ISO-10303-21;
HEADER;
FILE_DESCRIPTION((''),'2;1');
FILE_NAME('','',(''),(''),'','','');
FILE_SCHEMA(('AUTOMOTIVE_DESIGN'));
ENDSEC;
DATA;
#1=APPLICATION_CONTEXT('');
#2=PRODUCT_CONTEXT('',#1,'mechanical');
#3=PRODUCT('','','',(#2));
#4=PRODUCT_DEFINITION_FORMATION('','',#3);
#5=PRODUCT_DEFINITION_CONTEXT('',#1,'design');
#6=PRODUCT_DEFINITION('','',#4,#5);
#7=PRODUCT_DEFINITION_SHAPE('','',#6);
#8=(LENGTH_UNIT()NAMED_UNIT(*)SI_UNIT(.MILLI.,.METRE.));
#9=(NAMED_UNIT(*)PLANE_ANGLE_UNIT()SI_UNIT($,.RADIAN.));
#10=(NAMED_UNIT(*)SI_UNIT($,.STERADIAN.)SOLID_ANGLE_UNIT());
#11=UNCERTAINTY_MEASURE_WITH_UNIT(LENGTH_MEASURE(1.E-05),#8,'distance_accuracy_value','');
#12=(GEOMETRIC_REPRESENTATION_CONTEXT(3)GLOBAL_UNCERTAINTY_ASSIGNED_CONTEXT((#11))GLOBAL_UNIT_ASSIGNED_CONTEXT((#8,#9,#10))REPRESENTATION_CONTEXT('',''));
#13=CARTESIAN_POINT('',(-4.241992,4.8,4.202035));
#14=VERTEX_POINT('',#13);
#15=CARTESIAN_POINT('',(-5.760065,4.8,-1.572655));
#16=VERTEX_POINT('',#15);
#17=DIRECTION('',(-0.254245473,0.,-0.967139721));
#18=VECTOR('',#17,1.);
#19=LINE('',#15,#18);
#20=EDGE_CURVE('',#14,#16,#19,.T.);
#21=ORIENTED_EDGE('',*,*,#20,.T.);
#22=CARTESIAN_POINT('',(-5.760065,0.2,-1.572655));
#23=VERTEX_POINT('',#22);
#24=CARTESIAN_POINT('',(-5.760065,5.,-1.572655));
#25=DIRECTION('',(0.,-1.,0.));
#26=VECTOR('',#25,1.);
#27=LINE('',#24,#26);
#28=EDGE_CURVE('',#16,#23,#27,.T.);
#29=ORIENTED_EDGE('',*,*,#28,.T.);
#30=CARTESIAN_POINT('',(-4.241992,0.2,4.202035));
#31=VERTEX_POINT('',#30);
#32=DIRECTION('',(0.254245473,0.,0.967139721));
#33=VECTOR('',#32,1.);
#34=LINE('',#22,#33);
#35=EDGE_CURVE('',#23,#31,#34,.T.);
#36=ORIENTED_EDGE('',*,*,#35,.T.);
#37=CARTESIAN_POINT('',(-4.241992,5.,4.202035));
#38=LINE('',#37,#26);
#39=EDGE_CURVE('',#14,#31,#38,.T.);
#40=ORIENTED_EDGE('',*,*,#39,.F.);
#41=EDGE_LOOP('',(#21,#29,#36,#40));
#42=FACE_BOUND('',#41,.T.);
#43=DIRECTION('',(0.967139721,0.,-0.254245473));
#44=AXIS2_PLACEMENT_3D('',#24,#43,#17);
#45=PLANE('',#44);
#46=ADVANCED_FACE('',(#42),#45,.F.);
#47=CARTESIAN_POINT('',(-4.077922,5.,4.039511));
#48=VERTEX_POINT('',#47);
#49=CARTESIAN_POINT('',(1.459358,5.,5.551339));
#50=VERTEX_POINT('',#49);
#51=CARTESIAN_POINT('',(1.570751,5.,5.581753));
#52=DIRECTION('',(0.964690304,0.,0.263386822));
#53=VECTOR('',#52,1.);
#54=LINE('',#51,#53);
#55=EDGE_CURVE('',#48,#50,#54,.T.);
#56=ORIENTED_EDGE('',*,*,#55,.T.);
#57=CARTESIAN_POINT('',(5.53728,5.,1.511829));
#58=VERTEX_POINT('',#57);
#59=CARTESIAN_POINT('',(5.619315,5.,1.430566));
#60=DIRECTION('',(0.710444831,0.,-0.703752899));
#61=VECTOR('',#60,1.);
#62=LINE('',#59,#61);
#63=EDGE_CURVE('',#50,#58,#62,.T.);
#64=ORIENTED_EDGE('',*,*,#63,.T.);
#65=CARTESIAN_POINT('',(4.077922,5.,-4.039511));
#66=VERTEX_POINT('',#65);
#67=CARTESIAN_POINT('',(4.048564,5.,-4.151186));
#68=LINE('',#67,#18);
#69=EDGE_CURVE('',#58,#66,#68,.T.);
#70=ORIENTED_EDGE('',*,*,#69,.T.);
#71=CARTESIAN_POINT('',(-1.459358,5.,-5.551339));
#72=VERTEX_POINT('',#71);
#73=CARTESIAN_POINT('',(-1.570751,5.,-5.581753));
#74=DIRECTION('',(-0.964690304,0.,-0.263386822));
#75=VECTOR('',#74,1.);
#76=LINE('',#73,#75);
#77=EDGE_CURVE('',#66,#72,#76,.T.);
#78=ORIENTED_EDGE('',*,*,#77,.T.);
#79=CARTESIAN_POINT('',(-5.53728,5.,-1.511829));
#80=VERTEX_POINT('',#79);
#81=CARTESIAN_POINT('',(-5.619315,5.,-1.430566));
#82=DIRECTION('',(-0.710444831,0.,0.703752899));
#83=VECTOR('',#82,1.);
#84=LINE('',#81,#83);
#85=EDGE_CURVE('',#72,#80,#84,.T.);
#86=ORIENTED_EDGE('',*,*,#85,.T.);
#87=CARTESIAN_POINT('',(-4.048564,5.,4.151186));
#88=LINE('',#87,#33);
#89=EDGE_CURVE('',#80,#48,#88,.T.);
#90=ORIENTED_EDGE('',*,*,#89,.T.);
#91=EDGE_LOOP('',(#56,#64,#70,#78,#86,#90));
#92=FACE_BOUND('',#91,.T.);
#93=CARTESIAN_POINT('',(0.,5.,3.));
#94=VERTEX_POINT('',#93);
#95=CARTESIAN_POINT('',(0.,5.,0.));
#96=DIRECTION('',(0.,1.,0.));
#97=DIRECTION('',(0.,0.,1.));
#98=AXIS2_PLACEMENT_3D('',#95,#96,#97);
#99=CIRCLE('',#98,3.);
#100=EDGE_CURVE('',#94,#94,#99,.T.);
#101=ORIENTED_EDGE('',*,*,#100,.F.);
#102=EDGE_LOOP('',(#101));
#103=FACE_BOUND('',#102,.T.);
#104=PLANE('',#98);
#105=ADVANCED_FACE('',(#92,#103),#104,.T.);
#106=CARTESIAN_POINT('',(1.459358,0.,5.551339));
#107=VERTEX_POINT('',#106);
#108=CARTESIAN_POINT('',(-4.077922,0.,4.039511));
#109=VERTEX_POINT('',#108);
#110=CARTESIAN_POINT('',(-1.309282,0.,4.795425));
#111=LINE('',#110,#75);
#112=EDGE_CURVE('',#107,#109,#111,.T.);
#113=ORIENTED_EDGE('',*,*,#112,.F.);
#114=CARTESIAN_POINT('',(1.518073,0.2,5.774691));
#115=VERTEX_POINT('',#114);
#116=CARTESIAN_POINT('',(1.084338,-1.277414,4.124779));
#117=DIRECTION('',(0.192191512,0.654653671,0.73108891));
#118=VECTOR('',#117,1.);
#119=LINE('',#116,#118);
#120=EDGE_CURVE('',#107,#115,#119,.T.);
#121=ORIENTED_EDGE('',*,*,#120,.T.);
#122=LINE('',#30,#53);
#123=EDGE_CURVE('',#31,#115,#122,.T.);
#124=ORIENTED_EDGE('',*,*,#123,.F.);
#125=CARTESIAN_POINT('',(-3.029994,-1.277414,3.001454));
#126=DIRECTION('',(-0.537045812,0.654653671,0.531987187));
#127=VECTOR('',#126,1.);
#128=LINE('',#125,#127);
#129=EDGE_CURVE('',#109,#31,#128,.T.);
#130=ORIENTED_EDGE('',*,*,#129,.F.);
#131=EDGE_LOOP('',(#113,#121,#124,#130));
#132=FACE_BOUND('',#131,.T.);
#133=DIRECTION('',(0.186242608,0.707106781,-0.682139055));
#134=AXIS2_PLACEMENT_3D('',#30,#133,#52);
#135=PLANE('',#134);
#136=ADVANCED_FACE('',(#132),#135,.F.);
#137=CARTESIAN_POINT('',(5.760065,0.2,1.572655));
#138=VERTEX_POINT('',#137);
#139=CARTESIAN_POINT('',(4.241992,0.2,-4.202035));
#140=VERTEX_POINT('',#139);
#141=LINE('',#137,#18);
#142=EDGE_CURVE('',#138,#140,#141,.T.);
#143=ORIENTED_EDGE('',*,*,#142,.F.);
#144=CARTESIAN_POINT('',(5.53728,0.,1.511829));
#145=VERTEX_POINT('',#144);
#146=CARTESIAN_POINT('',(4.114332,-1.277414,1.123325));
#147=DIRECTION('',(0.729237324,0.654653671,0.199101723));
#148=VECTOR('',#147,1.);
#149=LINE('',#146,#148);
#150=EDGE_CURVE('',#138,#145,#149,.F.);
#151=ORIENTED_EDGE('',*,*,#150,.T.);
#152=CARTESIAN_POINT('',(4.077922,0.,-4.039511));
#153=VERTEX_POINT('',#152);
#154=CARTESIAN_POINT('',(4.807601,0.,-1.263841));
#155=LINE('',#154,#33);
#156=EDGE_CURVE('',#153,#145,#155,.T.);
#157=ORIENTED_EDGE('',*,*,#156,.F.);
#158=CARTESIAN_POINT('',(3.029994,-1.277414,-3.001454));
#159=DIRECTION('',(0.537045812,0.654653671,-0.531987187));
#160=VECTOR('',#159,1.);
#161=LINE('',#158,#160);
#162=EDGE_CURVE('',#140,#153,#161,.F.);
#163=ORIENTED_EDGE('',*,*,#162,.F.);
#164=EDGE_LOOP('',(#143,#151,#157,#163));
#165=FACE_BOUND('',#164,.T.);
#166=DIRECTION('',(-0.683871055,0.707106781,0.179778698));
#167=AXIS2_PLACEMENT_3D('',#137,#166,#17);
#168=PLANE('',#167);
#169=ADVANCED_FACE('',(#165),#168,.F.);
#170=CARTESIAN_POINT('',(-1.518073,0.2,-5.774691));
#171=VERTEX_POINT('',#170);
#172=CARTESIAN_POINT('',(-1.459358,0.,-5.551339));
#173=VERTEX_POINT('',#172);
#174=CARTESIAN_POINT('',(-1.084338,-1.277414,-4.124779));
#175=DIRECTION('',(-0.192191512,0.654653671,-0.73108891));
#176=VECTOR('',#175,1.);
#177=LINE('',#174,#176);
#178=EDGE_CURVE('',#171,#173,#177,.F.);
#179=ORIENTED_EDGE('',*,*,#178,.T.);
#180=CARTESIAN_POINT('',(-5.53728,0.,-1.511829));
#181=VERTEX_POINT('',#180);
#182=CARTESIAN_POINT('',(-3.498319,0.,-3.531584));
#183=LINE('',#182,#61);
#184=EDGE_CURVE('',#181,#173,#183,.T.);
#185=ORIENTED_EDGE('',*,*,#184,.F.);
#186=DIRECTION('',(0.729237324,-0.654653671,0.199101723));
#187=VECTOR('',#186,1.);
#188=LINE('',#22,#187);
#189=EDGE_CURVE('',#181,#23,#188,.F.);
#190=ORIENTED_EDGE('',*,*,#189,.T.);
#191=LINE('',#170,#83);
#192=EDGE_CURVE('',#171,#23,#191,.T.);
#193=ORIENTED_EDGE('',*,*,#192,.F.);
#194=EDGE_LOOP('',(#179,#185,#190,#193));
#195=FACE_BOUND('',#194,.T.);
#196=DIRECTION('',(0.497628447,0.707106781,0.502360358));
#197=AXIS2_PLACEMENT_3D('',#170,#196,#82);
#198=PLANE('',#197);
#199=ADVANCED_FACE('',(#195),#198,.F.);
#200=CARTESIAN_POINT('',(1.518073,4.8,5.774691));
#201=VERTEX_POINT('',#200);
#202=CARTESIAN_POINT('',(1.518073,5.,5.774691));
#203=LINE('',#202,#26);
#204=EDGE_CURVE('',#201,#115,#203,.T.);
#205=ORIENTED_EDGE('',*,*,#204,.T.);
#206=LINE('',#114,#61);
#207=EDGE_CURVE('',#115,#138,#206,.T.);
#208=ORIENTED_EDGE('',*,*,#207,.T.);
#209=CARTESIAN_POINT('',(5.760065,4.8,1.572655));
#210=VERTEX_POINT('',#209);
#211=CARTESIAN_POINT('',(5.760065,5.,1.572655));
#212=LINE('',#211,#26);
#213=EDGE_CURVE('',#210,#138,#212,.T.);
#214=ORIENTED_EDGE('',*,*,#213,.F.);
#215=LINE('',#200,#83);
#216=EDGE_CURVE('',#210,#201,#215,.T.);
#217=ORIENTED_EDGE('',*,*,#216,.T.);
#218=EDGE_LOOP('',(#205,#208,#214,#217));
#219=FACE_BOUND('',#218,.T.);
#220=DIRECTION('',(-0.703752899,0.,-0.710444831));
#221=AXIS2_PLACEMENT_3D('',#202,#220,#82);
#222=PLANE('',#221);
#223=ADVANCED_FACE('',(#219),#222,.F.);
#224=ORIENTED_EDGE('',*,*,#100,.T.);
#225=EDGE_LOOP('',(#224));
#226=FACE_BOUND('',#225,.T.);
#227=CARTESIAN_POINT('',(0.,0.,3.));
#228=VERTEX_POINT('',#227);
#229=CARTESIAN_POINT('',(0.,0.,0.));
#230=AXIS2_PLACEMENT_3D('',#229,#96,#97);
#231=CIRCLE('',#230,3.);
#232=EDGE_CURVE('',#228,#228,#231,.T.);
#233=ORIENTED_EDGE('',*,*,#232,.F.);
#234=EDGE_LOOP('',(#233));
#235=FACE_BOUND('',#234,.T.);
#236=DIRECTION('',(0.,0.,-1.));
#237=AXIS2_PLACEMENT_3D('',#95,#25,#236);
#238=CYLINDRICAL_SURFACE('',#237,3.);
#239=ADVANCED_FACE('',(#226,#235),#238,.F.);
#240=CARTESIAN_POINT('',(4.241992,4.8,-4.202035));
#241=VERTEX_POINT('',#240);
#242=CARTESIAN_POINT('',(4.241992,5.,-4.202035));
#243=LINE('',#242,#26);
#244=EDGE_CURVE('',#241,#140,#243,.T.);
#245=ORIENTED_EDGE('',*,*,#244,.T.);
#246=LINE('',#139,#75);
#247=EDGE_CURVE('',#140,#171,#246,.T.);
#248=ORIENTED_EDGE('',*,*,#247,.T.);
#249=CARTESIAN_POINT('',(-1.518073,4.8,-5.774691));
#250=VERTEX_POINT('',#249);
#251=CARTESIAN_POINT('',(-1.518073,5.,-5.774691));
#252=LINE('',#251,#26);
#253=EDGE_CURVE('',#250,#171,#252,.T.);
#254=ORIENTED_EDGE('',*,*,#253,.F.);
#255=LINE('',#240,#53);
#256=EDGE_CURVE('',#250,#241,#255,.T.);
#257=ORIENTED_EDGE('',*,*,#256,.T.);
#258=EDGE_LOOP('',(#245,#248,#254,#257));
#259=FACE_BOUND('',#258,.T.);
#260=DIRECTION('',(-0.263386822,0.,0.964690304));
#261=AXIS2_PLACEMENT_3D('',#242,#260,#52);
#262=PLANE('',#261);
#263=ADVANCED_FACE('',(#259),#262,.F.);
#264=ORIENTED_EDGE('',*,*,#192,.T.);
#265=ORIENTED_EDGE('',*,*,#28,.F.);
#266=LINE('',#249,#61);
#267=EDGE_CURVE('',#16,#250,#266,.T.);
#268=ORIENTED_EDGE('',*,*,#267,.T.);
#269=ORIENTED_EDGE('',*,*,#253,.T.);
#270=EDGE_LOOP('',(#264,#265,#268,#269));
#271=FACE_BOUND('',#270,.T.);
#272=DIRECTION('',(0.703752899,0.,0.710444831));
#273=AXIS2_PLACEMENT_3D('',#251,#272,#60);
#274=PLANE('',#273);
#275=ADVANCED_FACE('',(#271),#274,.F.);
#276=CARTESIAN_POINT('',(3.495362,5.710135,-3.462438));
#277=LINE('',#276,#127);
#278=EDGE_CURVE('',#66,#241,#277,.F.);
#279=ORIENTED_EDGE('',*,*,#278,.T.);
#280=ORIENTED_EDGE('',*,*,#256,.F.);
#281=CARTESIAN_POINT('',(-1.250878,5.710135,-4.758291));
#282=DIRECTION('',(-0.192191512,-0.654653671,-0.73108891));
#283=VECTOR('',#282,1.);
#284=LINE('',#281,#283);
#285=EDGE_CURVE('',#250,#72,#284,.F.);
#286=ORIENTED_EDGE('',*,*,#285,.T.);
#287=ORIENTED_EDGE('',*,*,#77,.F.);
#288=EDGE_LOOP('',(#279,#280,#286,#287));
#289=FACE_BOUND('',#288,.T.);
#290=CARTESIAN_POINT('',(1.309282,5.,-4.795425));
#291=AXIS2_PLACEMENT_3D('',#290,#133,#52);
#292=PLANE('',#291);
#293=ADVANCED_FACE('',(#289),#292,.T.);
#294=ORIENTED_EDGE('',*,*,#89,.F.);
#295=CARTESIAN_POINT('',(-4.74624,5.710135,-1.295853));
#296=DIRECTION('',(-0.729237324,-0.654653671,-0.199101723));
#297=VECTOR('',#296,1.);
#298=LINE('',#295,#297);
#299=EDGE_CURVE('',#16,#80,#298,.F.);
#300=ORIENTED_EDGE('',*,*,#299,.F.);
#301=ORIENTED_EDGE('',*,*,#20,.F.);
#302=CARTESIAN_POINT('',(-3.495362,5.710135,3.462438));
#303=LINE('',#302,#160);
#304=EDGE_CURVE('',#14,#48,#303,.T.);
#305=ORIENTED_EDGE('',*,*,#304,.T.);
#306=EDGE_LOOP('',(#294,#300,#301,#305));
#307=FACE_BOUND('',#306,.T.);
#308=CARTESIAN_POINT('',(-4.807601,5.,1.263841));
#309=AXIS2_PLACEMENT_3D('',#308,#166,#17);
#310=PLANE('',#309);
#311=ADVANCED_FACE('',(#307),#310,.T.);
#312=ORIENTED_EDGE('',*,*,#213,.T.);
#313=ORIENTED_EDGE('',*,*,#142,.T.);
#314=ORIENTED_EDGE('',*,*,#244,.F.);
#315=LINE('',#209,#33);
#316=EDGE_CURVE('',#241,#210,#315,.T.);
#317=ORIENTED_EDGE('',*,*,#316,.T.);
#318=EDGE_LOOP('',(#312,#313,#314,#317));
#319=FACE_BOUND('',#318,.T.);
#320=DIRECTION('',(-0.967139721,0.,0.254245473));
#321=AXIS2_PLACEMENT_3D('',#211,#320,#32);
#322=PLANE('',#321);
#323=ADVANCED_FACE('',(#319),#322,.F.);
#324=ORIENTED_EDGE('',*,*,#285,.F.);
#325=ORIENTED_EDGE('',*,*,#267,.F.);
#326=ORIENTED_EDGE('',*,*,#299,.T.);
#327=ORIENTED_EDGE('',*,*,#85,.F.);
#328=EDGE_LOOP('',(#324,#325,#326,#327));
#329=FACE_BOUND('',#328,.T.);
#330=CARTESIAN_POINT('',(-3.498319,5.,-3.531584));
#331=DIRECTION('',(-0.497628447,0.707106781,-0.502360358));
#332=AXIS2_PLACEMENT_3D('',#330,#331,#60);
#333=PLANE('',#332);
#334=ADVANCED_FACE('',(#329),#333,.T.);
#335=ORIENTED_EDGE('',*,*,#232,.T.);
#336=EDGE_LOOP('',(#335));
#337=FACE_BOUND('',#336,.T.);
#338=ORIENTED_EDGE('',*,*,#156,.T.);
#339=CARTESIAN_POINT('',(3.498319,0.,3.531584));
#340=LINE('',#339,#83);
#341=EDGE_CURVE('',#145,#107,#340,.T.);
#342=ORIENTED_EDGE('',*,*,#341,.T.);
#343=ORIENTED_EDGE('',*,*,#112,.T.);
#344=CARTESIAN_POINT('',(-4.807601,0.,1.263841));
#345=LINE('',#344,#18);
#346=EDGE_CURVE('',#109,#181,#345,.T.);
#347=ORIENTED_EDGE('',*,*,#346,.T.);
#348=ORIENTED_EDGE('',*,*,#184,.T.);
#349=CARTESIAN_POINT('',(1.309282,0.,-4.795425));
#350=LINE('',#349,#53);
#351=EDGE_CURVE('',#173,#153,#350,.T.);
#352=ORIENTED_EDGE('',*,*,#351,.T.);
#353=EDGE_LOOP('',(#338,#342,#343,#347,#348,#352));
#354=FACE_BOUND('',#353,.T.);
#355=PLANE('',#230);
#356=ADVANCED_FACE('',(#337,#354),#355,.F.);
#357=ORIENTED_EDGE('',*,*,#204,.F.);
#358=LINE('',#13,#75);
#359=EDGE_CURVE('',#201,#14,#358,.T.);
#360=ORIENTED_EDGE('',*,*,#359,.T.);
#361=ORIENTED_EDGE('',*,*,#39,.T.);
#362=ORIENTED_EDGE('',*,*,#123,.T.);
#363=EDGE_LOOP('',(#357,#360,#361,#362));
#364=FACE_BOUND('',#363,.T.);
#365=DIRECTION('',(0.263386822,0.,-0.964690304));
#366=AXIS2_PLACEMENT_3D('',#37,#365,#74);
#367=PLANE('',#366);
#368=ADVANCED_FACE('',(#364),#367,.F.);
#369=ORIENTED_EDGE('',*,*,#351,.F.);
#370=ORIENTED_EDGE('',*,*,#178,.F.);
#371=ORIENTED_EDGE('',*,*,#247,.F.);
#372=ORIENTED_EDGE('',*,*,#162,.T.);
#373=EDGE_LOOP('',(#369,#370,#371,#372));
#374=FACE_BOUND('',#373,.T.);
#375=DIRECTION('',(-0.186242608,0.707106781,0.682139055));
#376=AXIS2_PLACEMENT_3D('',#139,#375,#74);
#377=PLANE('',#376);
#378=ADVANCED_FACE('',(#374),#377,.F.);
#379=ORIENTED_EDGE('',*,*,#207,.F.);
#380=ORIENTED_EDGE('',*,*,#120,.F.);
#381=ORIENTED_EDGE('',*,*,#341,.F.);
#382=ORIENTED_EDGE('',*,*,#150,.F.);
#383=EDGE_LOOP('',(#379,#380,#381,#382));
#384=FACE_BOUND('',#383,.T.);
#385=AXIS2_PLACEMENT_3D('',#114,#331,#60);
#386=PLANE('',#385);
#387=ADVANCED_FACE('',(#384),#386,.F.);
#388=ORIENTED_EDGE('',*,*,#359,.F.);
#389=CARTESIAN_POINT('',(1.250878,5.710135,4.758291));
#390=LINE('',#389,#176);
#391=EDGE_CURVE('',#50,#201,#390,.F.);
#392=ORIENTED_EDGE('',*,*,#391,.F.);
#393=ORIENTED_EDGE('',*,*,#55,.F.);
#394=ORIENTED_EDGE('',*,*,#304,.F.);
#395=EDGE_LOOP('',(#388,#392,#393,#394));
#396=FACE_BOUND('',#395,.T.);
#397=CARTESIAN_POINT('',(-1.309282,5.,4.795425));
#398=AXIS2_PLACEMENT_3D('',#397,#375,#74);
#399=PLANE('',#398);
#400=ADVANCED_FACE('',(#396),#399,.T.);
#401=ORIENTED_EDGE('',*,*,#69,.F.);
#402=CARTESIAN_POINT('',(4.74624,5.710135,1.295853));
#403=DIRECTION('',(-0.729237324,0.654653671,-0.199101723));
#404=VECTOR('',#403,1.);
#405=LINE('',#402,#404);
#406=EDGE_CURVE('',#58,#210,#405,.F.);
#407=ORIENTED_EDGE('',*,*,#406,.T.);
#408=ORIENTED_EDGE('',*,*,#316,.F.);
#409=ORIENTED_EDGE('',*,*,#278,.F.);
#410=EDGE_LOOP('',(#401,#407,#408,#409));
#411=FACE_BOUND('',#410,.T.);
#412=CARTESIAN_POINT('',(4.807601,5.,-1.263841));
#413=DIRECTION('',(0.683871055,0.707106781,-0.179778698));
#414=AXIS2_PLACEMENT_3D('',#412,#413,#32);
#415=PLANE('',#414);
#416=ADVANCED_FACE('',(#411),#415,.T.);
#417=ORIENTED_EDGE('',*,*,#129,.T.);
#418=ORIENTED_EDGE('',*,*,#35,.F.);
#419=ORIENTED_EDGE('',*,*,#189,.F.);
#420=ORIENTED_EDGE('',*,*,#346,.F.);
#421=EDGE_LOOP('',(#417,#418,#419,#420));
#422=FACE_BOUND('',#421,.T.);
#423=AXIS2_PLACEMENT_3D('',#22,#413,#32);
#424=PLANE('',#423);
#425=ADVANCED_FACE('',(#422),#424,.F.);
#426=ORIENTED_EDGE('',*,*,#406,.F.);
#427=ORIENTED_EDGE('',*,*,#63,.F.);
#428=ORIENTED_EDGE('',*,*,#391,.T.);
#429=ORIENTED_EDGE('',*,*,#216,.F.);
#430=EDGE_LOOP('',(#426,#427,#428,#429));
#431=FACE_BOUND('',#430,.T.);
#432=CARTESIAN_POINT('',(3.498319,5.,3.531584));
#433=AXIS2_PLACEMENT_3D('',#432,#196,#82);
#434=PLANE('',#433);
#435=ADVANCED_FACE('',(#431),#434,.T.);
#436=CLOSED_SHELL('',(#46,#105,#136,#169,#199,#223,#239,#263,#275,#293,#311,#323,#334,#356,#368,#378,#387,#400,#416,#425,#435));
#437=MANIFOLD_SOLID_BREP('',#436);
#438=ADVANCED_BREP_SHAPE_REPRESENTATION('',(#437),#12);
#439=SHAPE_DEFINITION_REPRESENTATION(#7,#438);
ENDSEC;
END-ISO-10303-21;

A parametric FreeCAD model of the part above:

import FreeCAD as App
import Part
import Sketcher

V = App.Vector


def edges_at(feature, points):
    """Names of the edges that pass closest to the given points."""
    edges = feature.Shape.Edges
    near = lambda p: min(range(len(edges)), key=lambda i: edges[i].distToShape(Part.Vertex(*p))[0])
    return sorted({f"Edge{near(p) + 1}" for p in points})


def add_polygon(sketch, points):
    """Adds a closed chain of lines whose ends are joined by coincident constraints."""
    first, n = sketch.GeometryCount, len(points)
    for a, b in zip(points, points[1:] + points[:1]):
        sketch.addGeometry(Part.LineSegment(App.Vector(*a, 0), App.Vector(*b, 0)), False)
    for i in range(n):
        sketch.addConstraint(Sketcher.Constraint("Coincident", first + i, 2, first + (i + 1) % n, 1))

doc = App.newDocument("Part")
body = doc.addObject("PartDesign::Body", "Body")

# Sketch on XZ plane
sketch1 = body.newObject("Sketcher::SketchObject", "Sketch")
sketch1.AttachmentSupport = (doc.getObject("XZ_Plane"), [""])
sketch1.MapMode = "FlatFace"
add_polygon(sketch1, [(-4.2, 4.2), (1.5, 5.8), (5.8, 1.6), (4.2, -4.2), (-1.5, -5.8), (-5.8, -1.6)])  # lines 0-5
sketch1.addGeometry(Part.Circle(V(0, 0, 0), V(0, 0, 1), 3), False)  # 6
sketch1.addConstraint(Sketcher.Constraint("Coincident", 6, 3, -1, 1))
sketch1.addConstraint(Sketcher.Constraint("Symmetric", 0, 2, 3, 2, -1, 1))
sketch1.addConstraint(Sketcher.Constraint("Symmetric", 1, 2, 4, 2, -1, 1))
sketch1.addConstraint(Sketcher.Constraint("Symmetric", 2, 2, 5, 2, -1, 1))
sketch1.addConstraint(Sketcher.Constraint("Equal", 0, 1))
sketch1.addConstraint(Sketcher.Constraint("Equal", 1, 2))
sketch1.addConstraint(Sketcher.Constraint("Diameter", 6, 6.0))
sketch1.addConstraint(Sketcher.Constraint("DistanceY", -1, 1, 0, 2, 5.774691))
sketch1.addConstraint(Sketcher.Constraint("DistanceY", 2, 2, 1, 2, 5.774691))
sketch1.addConstraint(Sketcher.Constraint("DistanceX", 0, 2, 2, 2, 2.723919))
sketch1.addConstraint(Sketcher.Constraint("DistanceX", 3, 2, 1, 2, 7.278139))
pad1 = body.newObject("PartDesign::Pad", "Pad")
pad1.Profile = sketch1
pad1.Length = 5
pad1.Reversed = True
doc.recompute()

chamfer = body.newObject("PartDesign::Chamfer", "Chamfer")
chamfer.Base = (pad1, edges_at(pad1, [
    (3.639, 5, 3.674),
    (5.001, 5, -1.315),
    (1.362, 5, -4.988),
    (-3.639, 5, -3.674),
    (-5.001, 5, 1.315),
    (-3.639, 0, -3.674),
    (1.362, 0, -4.988),
    (5.001, 0, -1.315),
    (-1.362, 5, 4.988),
    (3.639, 0, 3.674),
    (-1.362, 0, 4.988),
    (-5.001, 0, 1.315),
]))
chamfer.Size = 0.2

doc.recompute()
